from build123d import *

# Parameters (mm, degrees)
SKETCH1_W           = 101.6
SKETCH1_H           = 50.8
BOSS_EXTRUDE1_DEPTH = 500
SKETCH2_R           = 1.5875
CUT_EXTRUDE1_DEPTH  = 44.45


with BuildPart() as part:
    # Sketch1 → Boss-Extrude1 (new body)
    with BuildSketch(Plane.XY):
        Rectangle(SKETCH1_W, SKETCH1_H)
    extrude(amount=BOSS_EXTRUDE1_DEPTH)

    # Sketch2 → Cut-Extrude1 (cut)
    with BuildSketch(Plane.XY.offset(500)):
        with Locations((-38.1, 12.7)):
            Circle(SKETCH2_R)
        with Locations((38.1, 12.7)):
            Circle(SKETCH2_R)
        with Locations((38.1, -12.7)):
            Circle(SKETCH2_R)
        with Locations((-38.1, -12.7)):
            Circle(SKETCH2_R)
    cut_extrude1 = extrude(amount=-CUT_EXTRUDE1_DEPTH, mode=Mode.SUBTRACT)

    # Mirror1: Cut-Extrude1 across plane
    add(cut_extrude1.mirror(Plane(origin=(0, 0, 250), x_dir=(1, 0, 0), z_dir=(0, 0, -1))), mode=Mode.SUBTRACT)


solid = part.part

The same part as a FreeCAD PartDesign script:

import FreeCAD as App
import Part
import Sketcher

V = App.Vector
Q = App.Units.Quantity


def add_polygon(sketch, points):
    """Adds a closed chain of lines whose ends are joined by coincident constraints."""
    first, n = sketch.GeometryCount, len(points)
    for a, b in zip(points, points[1:] + points[:1]):
        sketch.addGeometry(Part.LineSegment(App.Vector(*a, 0), App.Vector(*b, 0)), False)
    for i in range(n):
        sketch.addConstraint(Sketcher.Constraint("Coincident", first + i, 2, first + (i + 1) % n, 1))

doc = App.newDocument("Part")
params = doc.addObject("Spreadsheet::Sheet", "Params")
for row, (alias, value) in enumerate([
    ("sketch1_width", "4 in"),
    ("sketch1_height", "2 in"),
    ("pad1_length", "500 mm"),
    ("sketch2_diameter", "0.125 in"),
    ("pocket1_length", "1.75 in"),
], start=1):
    params.set(f"A{row}", alias)
    params.set(f"B{row}", "=" + value)
    params.setAlias(f"B{row}", alias)

body = doc.addObject("PartDesign::Body", "Body")

# Sketch on XY plane
sketch1 = doc.addObject("Sketcher::SketchObject", "Sketch")
body.addObject(sketch1)
sketch1.AttachmentSupport = (doc.XY_Plane, [""])
sketch1.MapMode = "FlatFace"
add_polygon(sketch1, [(-51, 25), (-51, -25), (51, -25), (51, 25)])  # lines 0-3
sketch1.addConstraint(Sketcher.Constraint("Vertical", 0))
sketch1.addConstraint(Sketcher.Constraint("Horizontal", 1))
sketch1.addConstraint(Sketcher.Constraint("Vertical", 2))
sketch1.addConstraint(Sketcher.Constraint("Horizontal", 3))
sketch1.addConstraint(Sketcher.Constraint("Symmetric", 0, 2, 2, 2, -1, 1))
sketch1.addConstraint(Sketcher.Constraint("DistanceX", 1, 1, 1, 2, Q("4 in")))
sketch1.addConstraint(Sketcher.Constraint("DistanceY", 0, 2, 0, 1, Q("2 in")))
sketch1.setExpression("Constraints[9]", "Params.sketch1_width")
sketch1.setExpression("Constraints[10]", "Params.sketch1_height")
pad1 = doc.addObject("PartDesign::Pad", "Pad")
body.addObject(pad1)
pad1.Profile = sketch1
pad1.setExpression("Length", "Params.pad1_length")

# Sketch on XY plane
sketch2 = doc.addObject("Sketcher::SketchObject", "Sketch001")
body.addObject(sketch2)
sketch2.AttachmentSupport = (doc.XY_Plane, [""])
sketch2.MapMode = "FlatFace"
sketch2.AttachmentOffset = App.Placement(V(0, 0, 500), App.Rotation())
sketch2.addGeometry(Part.Circle(V(-38.1, 12.7, 0), V(0, 0, 1), 1.6), False)
sketch2.addGeometry(Part.Circle(V(38.1, 12.7, 0), V(0, 0, 1), 1.6), False)
sketch2.addGeometry(Part.Circle(V(38.1, -12.7, 0), V(0, 0, 1), 1.6), False)
sketch2.addGeometry(Part.Circle(V(-38.1, -12.7, 0), V(0, 0, 1), 1.6), False)
sketch2.addConstraint(Sketcher.Constraint("Equal", 0, 1))
sketch2.addConstraint(Sketcher.Constraint("Equal", 1, 2))
sketch2.addConstraint(Sketcher.Constraint("Equal", 2, 3))
sketch2.addConstraint(Sketcher.Constraint("Symmetric", 0, 3, 2, 3, -1, 1))
sketch2.addConstraint(Sketcher.Constraint("Symmetric", 1, 3, 3, 3, -1, 1))
sketch2.addConstraint(Sketcher.Constraint("Symmetric", 0, 3, 1, 3, -2))
sketch2.addConstraint(Sketcher.Constraint("Diameter", 0, Q("0.125 in")))
sketch2.addConstraint(Sketcher.Constraint("DistanceX", 0, 3, 1, 3, Q("3 in")))
sketch2.addConstraint(Sketcher.Constraint("DistanceY", 2, 3, 1, 3, Q("1 in")))
sketch2.setExpression("Constraints[6]", "Params.sketch2_diameter")
pocket1 = doc.addObject("PartDesign::Pocket", "Pocket")
body.addObject(pocket1)
pocket1.Profile = sketch2
pocket1.setExpression("Length", "Params.pocket1_length")
doc.recompute()

datumplane = doc.addObject("PartDesign::Plane", "DatumPlane")
body.addObject(datumplane)
datumplane.AttachmentSupport = (doc.XY_Plane, [""])
datumplane.MapMode = "FlatFace"
datumplane.AttachmentOffset = App.Placement(V(0, 0, 250), App.Rotation())
mirrored = doc.addObject("PartDesign::Mirrored", "Mirrored")
body.addObject(mirrored)
mirrored.Originals = [pocket1]
mirrored.MirrorPlane = (datumplane, [""])
body.Tip = mirrored

doc.recompute()
